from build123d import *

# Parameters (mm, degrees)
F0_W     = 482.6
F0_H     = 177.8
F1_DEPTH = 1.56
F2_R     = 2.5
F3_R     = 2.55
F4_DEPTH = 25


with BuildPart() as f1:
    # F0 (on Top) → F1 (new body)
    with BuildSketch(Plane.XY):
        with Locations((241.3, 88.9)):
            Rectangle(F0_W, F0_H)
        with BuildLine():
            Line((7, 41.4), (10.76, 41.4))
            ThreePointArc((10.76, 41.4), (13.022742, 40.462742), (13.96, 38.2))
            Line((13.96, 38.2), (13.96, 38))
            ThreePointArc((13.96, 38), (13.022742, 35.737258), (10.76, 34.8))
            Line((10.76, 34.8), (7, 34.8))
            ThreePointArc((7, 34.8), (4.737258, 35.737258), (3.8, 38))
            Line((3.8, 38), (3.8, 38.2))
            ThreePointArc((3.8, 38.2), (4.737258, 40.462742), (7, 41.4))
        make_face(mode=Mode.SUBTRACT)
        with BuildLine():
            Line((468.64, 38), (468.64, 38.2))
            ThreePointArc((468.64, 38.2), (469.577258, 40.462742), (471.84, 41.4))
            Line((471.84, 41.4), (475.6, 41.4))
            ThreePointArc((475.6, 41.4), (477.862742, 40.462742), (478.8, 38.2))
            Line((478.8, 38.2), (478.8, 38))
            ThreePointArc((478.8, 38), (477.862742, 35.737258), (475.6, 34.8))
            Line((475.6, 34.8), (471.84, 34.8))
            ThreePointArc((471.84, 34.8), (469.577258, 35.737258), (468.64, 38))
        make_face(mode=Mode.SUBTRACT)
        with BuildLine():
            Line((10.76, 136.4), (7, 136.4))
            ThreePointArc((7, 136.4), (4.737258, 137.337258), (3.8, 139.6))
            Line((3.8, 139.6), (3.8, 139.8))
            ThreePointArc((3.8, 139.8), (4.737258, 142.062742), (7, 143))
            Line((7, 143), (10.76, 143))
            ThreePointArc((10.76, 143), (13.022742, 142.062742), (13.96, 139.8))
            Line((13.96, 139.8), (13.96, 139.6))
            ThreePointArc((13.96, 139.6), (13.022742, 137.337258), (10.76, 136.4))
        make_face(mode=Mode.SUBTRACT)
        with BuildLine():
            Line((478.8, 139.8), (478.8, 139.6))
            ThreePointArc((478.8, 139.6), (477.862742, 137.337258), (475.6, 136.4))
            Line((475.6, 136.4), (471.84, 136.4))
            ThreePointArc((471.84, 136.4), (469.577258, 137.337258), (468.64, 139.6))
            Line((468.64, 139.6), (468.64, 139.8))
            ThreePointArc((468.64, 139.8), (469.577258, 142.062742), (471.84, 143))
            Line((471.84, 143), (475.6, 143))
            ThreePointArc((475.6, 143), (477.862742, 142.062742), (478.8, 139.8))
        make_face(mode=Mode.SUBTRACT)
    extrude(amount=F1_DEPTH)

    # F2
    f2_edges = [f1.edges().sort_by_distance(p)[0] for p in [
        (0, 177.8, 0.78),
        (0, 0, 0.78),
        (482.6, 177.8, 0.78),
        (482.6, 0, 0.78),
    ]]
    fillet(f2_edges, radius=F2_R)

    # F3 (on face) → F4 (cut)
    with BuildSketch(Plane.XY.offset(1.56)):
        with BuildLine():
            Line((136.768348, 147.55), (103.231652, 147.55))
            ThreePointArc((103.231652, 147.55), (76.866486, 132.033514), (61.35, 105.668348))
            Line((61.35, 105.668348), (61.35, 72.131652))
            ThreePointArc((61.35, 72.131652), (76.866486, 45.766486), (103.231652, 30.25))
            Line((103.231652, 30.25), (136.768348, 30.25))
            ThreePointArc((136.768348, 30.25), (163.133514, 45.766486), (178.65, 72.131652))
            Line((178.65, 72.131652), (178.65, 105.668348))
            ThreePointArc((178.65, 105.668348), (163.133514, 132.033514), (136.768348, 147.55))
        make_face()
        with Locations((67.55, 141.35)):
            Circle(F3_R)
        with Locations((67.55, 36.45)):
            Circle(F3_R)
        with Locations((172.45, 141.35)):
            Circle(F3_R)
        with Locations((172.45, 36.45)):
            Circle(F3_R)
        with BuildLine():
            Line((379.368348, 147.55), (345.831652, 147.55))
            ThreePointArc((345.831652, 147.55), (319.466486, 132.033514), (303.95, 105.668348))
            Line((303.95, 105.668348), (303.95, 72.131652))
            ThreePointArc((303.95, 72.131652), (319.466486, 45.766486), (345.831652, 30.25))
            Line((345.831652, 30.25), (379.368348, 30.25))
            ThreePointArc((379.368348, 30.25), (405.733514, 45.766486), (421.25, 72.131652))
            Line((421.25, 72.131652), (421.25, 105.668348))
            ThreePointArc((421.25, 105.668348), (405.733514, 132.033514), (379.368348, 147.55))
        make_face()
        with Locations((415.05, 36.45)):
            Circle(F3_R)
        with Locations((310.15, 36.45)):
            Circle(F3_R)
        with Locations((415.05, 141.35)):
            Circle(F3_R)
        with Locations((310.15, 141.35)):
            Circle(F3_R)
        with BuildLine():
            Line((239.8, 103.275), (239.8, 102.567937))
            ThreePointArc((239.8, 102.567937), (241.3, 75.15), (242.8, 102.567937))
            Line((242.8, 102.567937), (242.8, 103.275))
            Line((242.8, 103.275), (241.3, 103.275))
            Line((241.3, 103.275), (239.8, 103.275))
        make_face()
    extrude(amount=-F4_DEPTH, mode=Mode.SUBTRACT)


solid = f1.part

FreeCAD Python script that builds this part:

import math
import FreeCAD as App
import Part
import Sketcher

V = App.Vector


def edges_at(feature, points):
    """Names of the edges that pass closest to the given points."""
    edges = feature.Shape.Edges
    near = lambda p: min(range(len(edges)), key=lambda i: edges[i].distToShape(Part.Vertex(*p))[0])
    return sorted({f"Edge{near(p) + 1}" for p in points})


def add_polygon(sketch, points):
    """Adds a closed chain of lines whose ends are joined by coincident constraints."""
    first, n = sketch.GeometryCount, len(points)
    for a, b in zip(points, points[1:] + points[:1]):
        sketch.addGeometry(Part.LineSegment(App.Vector(*a, 0), App.Vector(*b, 0)), False)
    for i in range(n):
        sketch.addConstraint(Sketcher.Constraint("Coincident", first + i, 2, first + (i + 1) % n, 1))

doc = App.newDocument("Part")
body = doc.addObject("PartDesign::Body", "Body")

# Sketch on XY plane
sketch1 = body.newObject("Sketcher::SketchObject", "Sketch")
sketch1.AttachmentSupport = (doc.getObject("XY_Plane"), [""])
sketch1.MapMode = "FlatFace"
add_polygon(sketch1, [(0, 177.8), (0, 0), (482.6, 0), (482.6, 177.8)])  # lines 0-3
sketch1.addGeometry(Part.ArcOfCircle(Part.Circle(V(7, 38.2, 0), V(0, 0, 1), 3.2), math.radians(90), math.radians(180)), False)  # 4
sketch1.addGeometry(Part.LineSegment(V(7, 41.4, 0), V(10.76, 41.4, 0)), False)  # 5
sketch1.addGeometry(Part.ArcOfCircle(Part.Circle(V(10.76, 38.2, 0), V(0, 0, 1), 3.2), math.radians(0), math.radians(90)), False)  # 6
sketch1.addGeometry(Part.LineSegment(V(13.96, 38.2, 0), V(13.96, 38, 0)), False)  # 7
sketch1.addGeometry(Part.ArcOfCircle(Part.Circle(V(10.76, 38, 0), V(0, 0, 1), 3.2), math.radians(-90), math.radians(0)), False)  # 8
sketch1.addGeometry(Part.LineSegment(V(10.76, 34.8, 0), V(7, 34.8, 0)), False)  # 9
sketch1.addGeometry(Part.ArcOfCircle(Part.Circle(V(7, 38, 0), V(0, 0, 1), 3.2), math.radians(180), math.radians(270)), False)  # 10
sketch1.addGeometry(Part.LineSegment(V(3.8, 38, 0), V(3.8, 38.2, 0)), False)  # 11
sketch1.addGeometry(Part.ArcOfCircle(Part.Circle(V(471.84, 38, 0), V(0, 0, 1), 3.2), math.radians(180), math.radians(270)), False)  # 12
sketch1.addGeometry(Part.LineSegment(V(468.64, 38, 0), V(468.64, 38.2, 0)), False)  # 13
sketch1.addGeometry(Part.ArcOfCircle(Part.Circle(V(471.84, 38.2, 0), V(0, 0, 1), 3.2), math.radians(90), math.radians(180)), False)  # 14
sketch1.addGeometry(Part.LineSegment(V(471.84, 41.4, 0), V(475.6, 41.4, 0)), False)  # 15
sketch1.addGeometry(Part.ArcOfCircle(Part.Circle(V(475.6, 38.2, 0), V(0, 0, 1), 3.2), math.radians(0), math.radians(90)), False)  # 16
sketch1.addGeometry(Part.LineSegment(V(478.8, 38.2, 0), V(478.8, 38, 0)), False)  # 17
sketch1.addGeometry(Part.ArcOfCircle(Part.Circle(V(475.6, 38, 0), V(0, 0, 1), 3.2), math.radians(-90), math.radians(0)), False)  # 18
sketch1.addGeometry(Part.LineSegment(V(475.6, 34.8, 0), V(471.84, 34.8, 0)), False)  # 19
sketch1.addGeometry(Part.ArcOfCircle(Part.Circle(V(10.76, 139.6, 0), V(0, 0, 1), 3.2), math.radians(-90), math.radians(0)), False)  # 20
sketch1.addGeometry(Part.LineSegment(V(10.76, 136.4, 0), V(7, 136.4, 0)), False)  # 21
sketch1.addGeometry(Part.ArcOfCircle(Part.Circle(V(7, 139.6, 0), V(0, 0, 1), 3.2), math.radians(180), math.radians(270)), False)  # 22
sketch1.addGeometry(Part.LineSegment(V(3.8, 139.6, 0), V(3.8, 139.8, 0)), False)  # 23
sketch1.addGeometry(Part.ArcOfCircle(Part.Circle(V(7, 139.8, 0), V(0, 0, 1), 3.2), math.radians(90), math.radians(180)), False)  # 24
sketch1.addGeometry(Part.LineSegment(V(7, 143, 0), V(10.76, 143, 0)), False)  # 25
sketch1.addGeometry(Part.ArcOfCircle(Part.Circle(V(10.76, 139.8, 0), V(0, 0, 1), 3.2), math.radians(0), math.radians(90)), False)  # 26
sketch1.addGeometry(Part.LineSegment(V(13.96, 139.8, 0), V(13.96, 139.6, 0)), False)  # 27
sketch1.addGeometry(Part.ArcOfCircle(Part.Circle(V(475.6, 139.8, 0), V(0, 0, 1), 3.2), math.radians(0), math.radians(90)), False)  # 28
sketch1.addGeometry(Part.LineSegment(V(478.8, 139.8, 0), V(478.8, 139.6, 0)), False)  # 29
sketch1.addGeometry(Part.ArcOfCircle(Part.Circle(V(475.6, 139.6, 0), V(0, 0, 1), 3.2), math.radians(-90), math.radians(0)), False)  # 30
sketch1.addGeometry(Part.LineSegment(V(475.6, 136.4, 0), V(471.84, 136.4, 0)), False)  # 31
sketch1.addGeometry(Part.ArcOfCircle(Part.Circle(V(471.84, 139.6, 0), V(0, 0, 1), 3.2), math.radians(180), math.radians(270)), False)  # 32
sketch1.addGeometry(Part.LineSegment(V(468.64, 139.6, 0), V(468.64, 139.8, 0)), False)  # 33
sketch1.addGeometry(Part.ArcOfCircle(Part.Circle(V(471.84, 139.8, 0), V(0, 0, 1), 3.2), math.radians(90), math.radians(180)), False)  # 34
sketch1.addGeometry(Part.LineSegment(V(471.84, 143, 0), V(475.6, 143, 0)), False)  # 35
sketch1.addConstraint([
    Sketcher.Constraint("Tangent", 4, 1, 5, 1),
    Sketcher.Constraint("Tangent", 5, 2, 6, 2),
    Sketcher.Constraint("Tangent", 6, 1, 7, 1),
    Sketcher.Constraint("Tangent", 7, 2, 8, 2),
    Sketcher.Constraint("Tangent", 8, 1, 9, 1),
    Sketcher.Constraint("Tangent", 9, 2, 10, 2),
    Sketcher.Constraint("Tangent", 10, 1, 11, 1),
    Sketcher.Constraint("Tangent", 11, 2, 4, 2),
    Sketcher.Constraint("Tangent", 12, 1, 13, 1),
    Sketcher.Constraint("Tangent", 13, 2, 14, 2),
    Sketcher.Constraint("Tangent", 14, 1, 15, 1),
    Sketcher.Constraint("Tangent", 15, 2, 16, 2),
    Sketcher.Constraint("Tangent", 16, 1, 17, 1),
    Sketcher.Constraint("Tangent", 17, 2, 18, 2),
    Sketcher.Constraint("Tangent", 18, 1, 19, 1),
    Sketcher.Constraint("Tangent", 19, 2, 12, 2),
    Sketcher.Constraint("Tangent", 20, 1, 21, 1),
    Sketcher.Constraint("Tangent", 21, 2, 22, 2),
    Sketcher.Constraint("Tangent", 22, 1, 23, 1),
    Sketcher.Constraint("Tangent", 23, 2, 24, 2),
    Sketcher.Constraint("Tangent", 24, 1, 25, 1),
    Sketcher.Constraint("Tangent", 25, 2, 26, 2),
    Sketcher.Constraint("Tangent", 26, 1, 27, 1),
    Sketcher.Constraint("Tangent", 27, 2, 20, 2),
    Sketcher.Constraint("Tangent", 28, 1, 29, 1),
    Sketcher.Constraint("Tangent", 29, 2, 30, 2),
    Sketcher.Constraint("Tangent", 30, 1, 31, 1),
    Sketcher.Constraint("Tangent", 31, 2, 32, 2),
    Sketcher.Constraint("Tangent", 32, 1, 33, 1),
    Sketcher.Constraint("Tangent", 33, 2, 34, 2),
    Sketcher.Constraint("Tangent", 34, 1, 35, 1),
    Sketcher.Constraint("Tangent", 35, 2, 28, 2),
    Sketcher.Constraint("Vertical", 0),
    Sketcher.Constraint("Horizontal", 1),
    Sketcher.Constraint("Vertical", 2),
    Sketcher.Constraint("Horizontal", 3),
    Sketcher.Constraint("Horizontal", 5),
    Sketcher.Constraint("Vertical", 7),
    Sketcher.Constraint("Horizontal", 9),
    Sketcher.Constraint("Vertical", 11),
    Sketcher.Constraint("Vertical", 13),
    Sketcher.Constraint("Horizontal", 15),
    Sketcher.Constraint("Vertical", 17),
    Sketcher.Constraint("Horizontal", 19),
    Sketcher.Constraint("Horizontal", 21),
    Sketcher.Constraint("Vertical", 23),
    Sketcher.Constraint("Horizontal", 25),
    Sketcher.Constraint("Vertical", 27),
    Sketcher.Constraint("Vertical", 29),
    Sketcher.Constraint("Horizontal", 31),
    Sketcher.Constraint("Vertical", 33),
    Sketcher.Constraint("Horizontal", 35),
    Sketcher.Constraint("Coincident", 0, 2, -1, 1),
    Sketcher.Constraint("Equal", 4, 6),
    Sketcher.Constraint("Equal", 6, 8),
    Sketcher.Constraint("Equal", 8, 10),
    Sketcher.Constraint("Equal", 10, 12),
    Sketcher.Constraint("Equal", 12, 14),
    Sketcher.Constraint("Equal", 14, 16),
    Sketcher.Constraint("Equal", 16, 18),
    Sketcher.Constraint("Equal", 18, 20),
    Sketcher.Constraint("Equal", 20, 22),
    Sketcher.Constraint("Equal", 22, 24),
    Sketcher.Constraint("Equal", 24, 26),
    Sketcher.Constraint("Equal", 26, 28),
    Sketcher.Constraint("Equal", 28, 30),
    Sketcher.Constraint("Equal", 30, 32),
    Sketcher.Constraint("Equal", 32, 34),
    Sketcher.Constraint("Horizontal", 10, 3, 12, 3),
    Sketcher.Constraint("Horizontal", 6, 3, 14, 3),
    Sketcher.Constraint("Horizontal", 26, 3, 28, 3),
    Sketcher.Constraint("Horizontal", 22, 3, 30, 3),
    Sketcher.Constraint("Vertical", 8, 3, 20, 3),
    Sketcher.Constraint("Vertical", 10, 3, 22, 3),
    Sketcher.Constraint("Vertical", 18, 3, 28, 3),
    Sketcher.Constraint("Vertical", 14, 3, 32, 3),
    Sketcher.Constraint("Equal", 9, 15),
    Sketcher.Constraint("Equal", 17, 23),
    Sketcher.Constraint("Radius", 4, 3.199999),
    Sketcher.Constraint("DistanceX", 1, 1, 1, 2, 482.6),
    Sketcher.Constraint("DistanceY", 0, 2, 0, 1, 177.8),
    Sketcher.Constraint("DistanceY", 7, 2, 7, 1, 0.2),
    Sketcher.Constraint("DistanceX", -1, 1, 4, 3, 6.999999),
    Sketcher.Constraint("DistanceY", -1, 1, 8, 3, 37.999999),
    Sketcher.Constraint("DistanceY", -1, 1, 24, 1, 143.0),
    Sketcher.Constraint("DistanceX", 18, 3, 1, 2, 6.999999),
    Sketcher.Constraint("DistanceX", 5, 1, 5, 2, 3.76),
])
pad1 = body.newObject("PartDesign::Pad", "Pad")
pad1.Profile = sketch1
pad1.Length = 1.56
doc.recompute()

fillet = body.newObject("PartDesign::Fillet", "Fillet")
fillet.Base = (pad1, edges_at(pad1, [
    (0, 177.8, 0.78),
    (0, 0, 0.78),
    (482.6, 177.8, 0.78),
    (482.6, 0, 0.78),
]))
fillet.Radius = 2.5

# Sketch on XY plane
sketch2 = body.newObject("Sketcher::SketchObject", "Sketch001")
sketch2.AttachmentSupport = (doc.getObject("XY_Plane"), [""])
sketch2.MapMode = "FlatFace"
sketch2.AttachmentOffset = App.Placement(V(0, 0, 1.56), App.Rotation())
sketch2.addGeometry([
    Part.LineSegment(V(136.8, 147.6, 0), V(103.2, 147.6, 0)),  # 0
    Part.ArcOfCircle(Part.Circle(V(120, 88.9, 0), V(0, 0, 1), 61), math.radians(106), math.radians(164)),  # 1
    Part.LineSegment(V(61.4, 105.7, 0), V(61.4, 72.1, 0)),  # 2
    Part.ArcOfCircle(Part.Circle(V(120, 88.9, 0), V(0, 0, 1), 61), math.radians(-164), math.radians(-106)),  # 3
    Part.LineSegment(V(103.2, 30.2, 0), V(136.8, 30.2, 0)),  # 4
    Part.ArcOfCircle(Part.Circle(V(120, 88.9, 0), V(0, 0, 1), 61), math.radians(-74), math.radians(-16)),  # 5
    Part.LineSegment(V(178.7, 72.1, 0), V(178.7, 105.7, 0)),  # 6
    Part.ArcOfCircle(Part.Circle(V(120, 88.9, 0), V(0, 0, 1), 61), math.radians(16), math.radians(74)),  # 7
    Part.Circle(V(67.5, 141.3, 0), V(0, 0, 1), 2.5),  # 8
    Part.Circle(V(67.5, 36.5, 0), V(0, 0, 1), 2.5),  # 9
    Part.Circle(V(172.4, 141.3, 0), V(0, 0, 1), 2.5),  # 10
    Part.Circle(V(172.4, 36.5, 0), V(0, 0, 1), 2.5),  # 11
    Part.LineSegment(V(379.4, 147.6, 0), V(345.8, 147.6, 0)),  # 12
    Part.ArcOfCircle(Part.Circle(V(362.6, 88.9, 0), V(0, 0, 1), 61), math.radians(106), math.radians(164)),  # 13
    Part.LineSegment(V(303.9, 105.7, 0), V(303.9, 72.1, 0)),  # 14
    Part.ArcOfCircle(Part.Circle(V(362.6, 88.9, 0), V(0, 0, 1), 61), math.radians(-164), math.radians(-106)),  # 15
    Part.LineSegment(V(345.8, 30.2, 0), V(379.4, 30.2, 0)),  # 16
    Part.ArcOfCircle(Part.Circle(V(362.6, 88.9, 0), V(0, 0, 1), 61), math.radians(-74), math.radians(-16)),  # 17
    Part.LineSegment(V(421.2, 72.1, 0), V(421.2, 105.7, 0)),  # 18
    Part.ArcOfCircle(Part.Circle(V(362.6, 88.9, 0), V(0, 0, 1), 61), math.radians(16), math.radians(74)),  # 19
    Part.Circle(V(415.1, 36.5, 0), V(0, 0, 1), 2.5),  # 20
    Part.Circle(V(310.1, 36.5, 0), V(0, 0, 1), 2.5),  # 21
    Part.Circle(V(415.1, 141.3, 0), V(0, 0, 1), 2.5),  # 22
    Part.Circle(V(310.1, 141.3, 0), V(0, 0, 1), 2.5),  # 23
    Part.LineSegment(V(239.8, 103.3, 0), V(239.8, 102.6, 0)),  # 24
    Part.ArcOfCircle(Part.Circle(V(241.3, 88.9, 0), V(0, 0, 1), 13.8), math.radians(96), math.radians(444)),  # 25
    Part.LineSegment(V(242.8, 102.6, 0), V(242.8, 103.3, 0)),  # 26
    Part.LineSegment(V(242.8, 103.3, 0), V(239.8, 103.3, 0)),  # 27
], False)
sketch2.addConstraint([
    Sketcher.Constraint("Coincident", 0, 2, 1, 1),
    Sketcher.Constraint("Coincident", 1, 2, 2, 1),
    Sketcher.Constraint("Coincident", 2, 2, 3, 1),
    Sketcher.Constraint("Coincident", 3, 2, 4, 1),
    Sketcher.Constraint("Coincident", 4, 2, 5, 1),
    Sketcher.Constraint("Coincident", 5, 2, 6, 1),
    Sketcher.Constraint("Coincident", 6, 2, 7, 1),
    Sketcher.Constraint("Coincident", 7, 2, 0, 1),
    Sketcher.Constraint("Coincident", 12, 2, 13, 1),
    Sketcher.Constraint("Coincident", 13, 2, 14, 1),
    Sketcher.Constraint("Coincident", 14, 2, 15, 1),
    Sketcher.Constraint("Coincident", 15, 2, 16, 1),
    Sketcher.Constraint("Coincident", 16, 2, 17, 1),
    Sketcher.Constraint("Coincident", 17, 2, 18, 1),
    Sketcher.Constraint("Coincident", 18, 2, 19, 1),
    Sketcher.Constraint("Coincident", 19, 2, 12, 1),
    Sketcher.Constraint("Coincident", 24, 2, 25, 1),
    Sketcher.Constraint("Coincident", 25, 2, 26, 1),
    Sketcher.Constraint("Coincident", 26, 2, 27, 1),
    Sketcher.Constraint("Coincident", 27, 2, 24, 1),
    Sketcher.Constraint("Horizontal", 0),
    Sketcher.Constraint("Vertical", 2),
    Sketcher.Constraint("Horizontal", 4),
    Sketcher.Constraint("Vertical", 6),
    Sketcher.Constraint("Horizontal", 12),
    Sketcher.Constraint("Vertical", 14),
    Sketcher.Constraint("Horizontal", 16),
    Sketcher.Constraint("Vertical", 18),
    Sketcher.Constraint("Vertical", 24),
    Sketcher.Constraint("Vertical", 26),
    Sketcher.Constraint("Horizontal", 27),
    Sketcher.Constraint("Coincident", 3, 3, 1, 3),
    Sketcher.Constraint("Coincident", 5, 3, 1, 3),
    Sketcher.Constraint("Coincident", 7, 3, 1, 3),
    Sketcher.Constraint("Coincident", 15, 3, 13, 3),
    Sketcher.Constraint("Coincident", 17, 3, 13, 3),
    Sketcher.Constraint("Coincident", 19, 3, 13, 3),
    Sketcher.Constraint("Equal", 1, 3),
    Sketcher.Constraint("Equal", 3, 5),
    Sketcher.Constraint("Equal", 5, 7),
    Sketcher.Constraint("Equal", 8, 9),
    Sketcher.Constraint("Equal", 9, 10),
    Sketcher.Constraint("Equal", 10, 11),
    Sketcher.Constraint("Equal", 7, 13),
    Sketcher.Constraint("Equal", 13, 15),
    Sketcher.Constraint("Equal", 15, 17),
    Sketcher.Constraint("Equal", 17, 19),
    Sketcher.Constraint("Equal", 11, 20),
    Sketcher.Constraint("Equal", 20, 21),
    Sketcher.Constraint("Equal", 21, 22),
    Sketcher.Constraint("Equal", 22, 23),
    Sketcher.Constraint("Horizontal", 8, 3, 10, 3),
    Sketcher.Constraint("Horizontal", 9, 3, 11, 3),
    Sketcher.Constraint("Horizontal", 7, 3, 13, 3),
    Sketcher.Constraint("Horizontal", 11, 3, 20, 3),
    Sketcher.Constraint("Horizontal", 20, 3, 21, 3),
    Sketcher.Constraint("Horizontal", 10, 3, 22, 3),
    Sketcher.Constraint("Horizontal", 22, 3, 23, 3),
    Sketcher.Constraint("Horizontal", 2, 2, 5, 2),
    Sketcher.Constraint("Horizontal", 7, 2, 12, 2),
    Sketcher.Constraint("Horizontal", 6, 2, 13, 2),
    Sketcher.Constraint("Horizontal", 4, 2, 15, 2),
    Sketcher.Constraint("Horizontal", 14, 2, 17, 2),
    Sketcher.Constraint("Horizontal", 24, 2, 25, 2),
    Sketcher.Constraint("Vertical", 8, 3, 9, 3),
    Sketcher.Constraint("Vertical", 10, 3, 11, 3),
    Sketcher.Constraint("Vertical", 20, 3, 22, 3),
    Sketcher.Constraint("Vertical", 21, 3, 23, 3),
    Sketcher.Constraint("Vertical", 0, 2, 3, 2),
    Sketcher.Constraint("Equal", 16, 2),
    Sketcher.Constraint("Diameter", 8, 5.1),
    Sketcher.Constraint("DistanceX", 27, 2, 27, 1, 3.0),
    Sketcher.Constraint("Radius", 25, 13.75),
    Sketcher.Constraint("DistanceX", -1, 1, 25, 3, 241.3),
    Sketcher.Constraint("DistanceY", -1, 1, 25, 3, 88.9),
    Sketcher.Constraint("DistanceY", 9, 3, 8, 3, 104.9),
    Sketcher.Constraint("DistanceX", 8, 3, 10, 3, 104.9),
    Sketcher.Constraint("DistanceX", 1, 3, 13, 3, 242.6),
    Sketcher.Constraint("DistanceX", 11, 3, 20, 3, 242.6),
    Sketcher.Constraint("DistanceX", 21, 3, 20, 3, 104.9),
    Sketcher.Constraint("DistanceY", 8, 3, 0, 2, 6.2),
    Sketcher.Constraint("DistanceX", 1, 2, 8, 3, 6.2),
    Sketcher.Constraint("DistanceY", 3, 2, 9, 3, 6.2),
    Sketcher.Constraint("DistanceX", -1, 1, 8, 3, 67.55),
    Sketcher.Constraint("DistanceY", -1, 1, 8, 3, 141.35),
    Sketcher.Constraint("DistanceY", -1, 1, 26, 2, 103.275),
    Sketcher.Constraint("Radius", 1, 60.999996),
])
pocket1 = body.newObject("PartDesign::Pocket", "Pocket")
pocket1.Profile = sketch2
pocket1.Length = 25

doc.recompute()
